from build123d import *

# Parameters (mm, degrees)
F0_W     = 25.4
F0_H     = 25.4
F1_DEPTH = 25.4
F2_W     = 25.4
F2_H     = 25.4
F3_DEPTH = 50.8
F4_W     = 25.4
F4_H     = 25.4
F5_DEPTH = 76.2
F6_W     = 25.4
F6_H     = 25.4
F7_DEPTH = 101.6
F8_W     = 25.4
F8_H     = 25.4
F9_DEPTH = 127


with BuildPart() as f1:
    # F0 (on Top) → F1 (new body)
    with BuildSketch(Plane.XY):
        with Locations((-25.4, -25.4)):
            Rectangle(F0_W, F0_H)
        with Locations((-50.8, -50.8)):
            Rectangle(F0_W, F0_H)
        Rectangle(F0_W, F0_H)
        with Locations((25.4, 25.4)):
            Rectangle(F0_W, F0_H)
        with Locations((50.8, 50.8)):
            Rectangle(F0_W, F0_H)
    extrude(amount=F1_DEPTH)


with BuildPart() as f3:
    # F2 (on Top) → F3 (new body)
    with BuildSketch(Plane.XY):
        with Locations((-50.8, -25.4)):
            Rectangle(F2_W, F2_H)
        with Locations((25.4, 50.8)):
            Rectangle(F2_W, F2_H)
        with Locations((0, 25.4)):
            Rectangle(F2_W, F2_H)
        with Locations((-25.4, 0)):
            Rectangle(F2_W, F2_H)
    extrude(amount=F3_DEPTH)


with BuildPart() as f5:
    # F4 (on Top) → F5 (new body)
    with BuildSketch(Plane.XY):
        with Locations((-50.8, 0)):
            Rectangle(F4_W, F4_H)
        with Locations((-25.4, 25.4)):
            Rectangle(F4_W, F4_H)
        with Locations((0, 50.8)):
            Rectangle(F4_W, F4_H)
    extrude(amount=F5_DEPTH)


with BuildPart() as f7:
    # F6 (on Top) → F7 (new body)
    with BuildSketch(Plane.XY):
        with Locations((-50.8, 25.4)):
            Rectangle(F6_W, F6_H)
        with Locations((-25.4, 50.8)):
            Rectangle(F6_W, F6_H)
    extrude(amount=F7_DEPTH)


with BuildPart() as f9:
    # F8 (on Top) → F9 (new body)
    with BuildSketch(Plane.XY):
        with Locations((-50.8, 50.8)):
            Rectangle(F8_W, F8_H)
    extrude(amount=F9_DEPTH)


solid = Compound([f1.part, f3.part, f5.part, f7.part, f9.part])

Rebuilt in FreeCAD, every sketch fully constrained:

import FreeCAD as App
import Part
import Sketcher
from FreeCAD import Vector
Q = App.Units.Quantity


def add_polygon(sketch, points):
    """Adds a closed chain of lines whose ends are joined by coincident constraints."""
    first, n = sketch.GeometryCount, len(points)
    for a, b in zip(points, points[1:] + points[:1]):
        sketch.addGeometry(Part.LineSegment(App.Vector(*a, 0), App.Vector(*b, 0)), False)
    for i in range(n):
        sketch.addConstraint(Sketcher.Constraint("Coincident", first + i, 2, first + (i + 1) % n, 1))

doc = App.newDocument("Part")
body = doc.addObject("PartDesign::Body", "Body")
body.AllowCompound = True

sketch1 = body.newObject("Sketcher::SketchObject", "Sketch")
sketch1.AttachmentSupport = (doc.getObject("XY_Plane"), [""])
sketch1.MapMode = "FlatFace"
add_polygon(sketch1, [(-38.1, -12.7), (-38.1, -38.1), (-12.7, -38.1), (-12.7, -12.7)])
add_polygon(sketch1, [(-63.5, -38.1), (-63.5, -63.5), (-38.1, -63.5), (-38.1, -38.1)])
add_polygon(sketch1, [(-12.7, 12.7), (-12.7, -12.7), (12.7, -12.7), (12.7, 12.7)])
add_polygon(sketch1, [(12.7, 38.1), (12.7, 12.7), (38.1, 12.7), (38.1, 38.1)])
add_polygon(sketch1, [(38.1, 63.5), (38.1, 38.1), (63.5, 38.1), (63.5, 63.5)])
sketch1.addConstraint([
    Sketcher.Constraint("Vertical", 0),
    Sketcher.Constraint("Horizontal", 1),
    Sketcher.Constraint("Vertical", 2),
    Sketcher.Constraint("Horizontal", 3),
    Sketcher.Constraint("Vertical", 4),
    Sketcher.Constraint("Horizontal", 5),
    Sketcher.Constraint("Vertical", 6),
    Sketcher.Constraint("Horizontal", 7),
    Sketcher.Constraint("Vertical", 8),
    Sketcher.Constraint("Horizontal", 9),
    Sketcher.Constraint("Vertical", 10),
    Sketcher.Constraint("Horizontal", 11),
    Sketcher.Constraint("Vertical", 12),
    Sketcher.Constraint("Horizontal", 13),
    Sketcher.Constraint("Vertical", 14),
    Sketcher.Constraint("Horizontal", 15),
    Sketcher.Constraint("Vertical", 16),
    Sketcher.Constraint("Horizontal", 17),
    Sketcher.Constraint("Vertical", 18),
    Sketcher.Constraint("Horizontal", 19),
    Sketcher.Constraint("Coincident", 6, 2, 0, 2),
    Sketcher.Constraint("Coincident", 8, 2, 2, 2),
    Sketcher.Constraint("Coincident", 12, 2, 10, 2),
    Sketcher.Constraint("Coincident", 16, 2, 14, 2),
    Sketcher.Constraint("Symmetric", 2, 2, 10, 2, -1, 1),
    Sketcher.Constraint("Symmetric", 0, 2, 14, 2, -1, 1),
    Sketcher.Constraint("Symmetric", 4, 2, 18, 2, -1, 1),
    Sketcher.Constraint("Equal", 3, 5),
    Sketcher.Constraint("Equal", 7, 9),
    Sketcher.Constraint("Equal", 19, 0),
    Sketcher.Constraint("Equal", 2, 4),
    Sketcher.Constraint("Equal", 6, 8),
    Sketcher.Constraint("DistanceX", 1, 1, 1, 2, Q("1 in")),
])
pad1 = body.newObject("PartDesign::Pad", "Pad")
pad1.Profile = sketch1
pad1.Length = Q("1 in")
body2 = doc.addObject("PartDesign::Body", "Body001")
body2.AllowCompound = True

sketch2 = body2.newObject("Sketcher::SketchObject", "Sketch001")
sketch2.AttachmentSupport = (doc.getObject("XY_Plane001"), [""])
sketch2.MapMode = "FlatFace"
add_polygon(sketch2, [(-63.5, -12.7), (-63.5, -38.1), (-38.1, -38.1), (-38.1, -12.7)])
add_polygon(sketch2, [(12.7, 63.5), (12.7, 38.1), (38.1, 38.1), (38.1, 63.5)])
add_polygon(sketch2, [(-12.7, 38.1), (-12.7, 12.7), (12.7, 12.7), (12.7, 38.1)])
add_polygon(sketch2, [(-38.1, 12.7), (-38.1, -12.7), (-12.7, -12.7), (-12.7, 12.7)])
sketch2.addConstraint([
    Sketcher.Constraint("Vertical", 0),
    Sketcher.Constraint("Horizontal", 1),
    Sketcher.Constraint("Vertical", 2),
    Sketcher.Constraint("Horizontal", 3),
    Sketcher.Constraint("Vertical", 4),
    Sketcher.Constraint("Horizontal", 5),
    Sketcher.Constraint("Vertical", 6),
    Sketcher.Constraint("Horizontal", 7),
    Sketcher.Constraint("Vertical", 8),
    Sketcher.Constraint("Horizontal", 9),
    Sketcher.Constraint("Vertical", 10),
    Sketcher.Constraint("Horizontal", 11),
    Sketcher.Constraint("Vertical", 12),
    Sketcher.Constraint("Horizontal", 13),
    Sketcher.Constraint("Vertical", 14),
    Sketcher.Constraint("Horizontal", 15),
    Sketcher.Constraint("Coincident", 10, 2, 4, 2),
    Sketcher.Constraint("Coincident", 12, 2, 2, 2),
    Sketcher.Constraint("Coincident", 14, 2, 8, 2),
    Sketcher.Constraint("Symmetric", 1, 2, 5, 2, -1, 1),
    Sketcher.Constraint("Symmetric", 9, 2, 13, 2, -1, 1),
    Sketcher.Constraint("Equal", 3, 5),
    Sketcher.Constraint("Equal", 7, 9),
    Sketcher.Constraint("Equal", 15, 0),
    Sketcher.Constraint("Equal", 2, 4),
    Sketcher.Constraint("Equal", 10, 12),
    Sketcher.Constraint("DistanceX", 1, 1, 1, 2, Q("1 in")),
])
pad2 = body2.newObject("PartDesign::Pad", "Pad001")
pad2.Profile = sketch2
pad2.Length = Q("2 in")
body3 = doc.addObject("PartDesign::Body", "Body002")
body3.AllowCompound = True

sketch3 = body3.newObject("Sketcher::SketchObject", "Sketch002")
sketch3.AttachmentSupport = (doc.getObject("XY_Plane002"), [""])
sketch3.MapMode = "FlatFace"
add_polygon(sketch3, [(-63.5, 12.7), (-63.5, -12.7), (-38.1, -12.7), (-38.1, 12.7)])
add_polygon(sketch3, [(-38.1, 38.1), (-38.1, 12.7), (-12.7, 12.7), (-12.7, 38.1)])
add_polygon(sketch3, [(-12.7, 63.5), (-12.7, 38.1), (12.7, 38.1), (12.7, 63.5)])
sketch3.addConstraint([
    Sketcher.Constraint("Vertical", 0),
    Sketcher.Constraint("Horizontal", 1),
    Sketcher.Constraint("Vertical", 2),
    Sketcher.Constraint("Horizontal", 3),
    Sketcher.Constraint("Vertical", 4),
    Sketcher.Constraint("Horizontal", 5),
    Sketcher.Constraint("Vertical", 6),
    Sketcher.Constraint("Horizontal", 7),
    Sketcher.Constraint("Vertical", 8),
    Sketcher.Constraint("Horizontal", 9),
    Sketcher.Constraint("Vertical", 10),
    Sketcher.Constraint("Horizontal", 11),
    Sketcher.Constraint("Coincident", 4, 2, 2, 2),
    Sketcher.Constraint("Coincident", 8, 2, 6, 2),
    Sketcher.Constraint("Equal", 3, 5),
    Sketcher.Constraint("Equal", 7, 9),
    Sketcher.Constraint("Equal", 11, 0),
    Sketcher.Constraint("Equal", 2, 4),
    Sketcher.Constraint("Equal", 6, 8),
    Sketcher.Constraint("DistanceX", 1, 1, 1, 2, Q("1 in")),
    Sketcher.Constraint("DistanceX", 0, 2, -1, 1, Q("2.5 in")),
    Sketcher.Constraint("DistanceY", 0, 2, -1, 1, Q("0.5 in")),
])
pad3 = body3.newObject("PartDesign::Pad", "Pad002")
pad3.Profile = sketch3
pad3.Length = Q("3 in")
body4 = doc.addObject("PartDesign::Body", "Body003")
body4.AllowCompound = True

sketch4 = body4.newObject("Sketcher::SketchObject", "Sketch003")
sketch4.AttachmentSupport = (doc.getObject("XY_Plane003"), [""])
sketch4.MapMode = "FlatFace"
add_polygon(sketch4, [(-63.5, 38.1), (-63.5, 12.7), (-38.1, 12.7), (-38.1, 38.1)])
add_polygon(sketch4, [(-38.1, 63.5), (-38.1, 38.1), (-12.7, 38.1), (-12.7, 63.5)])
sketch4.addConstraint([
    Sketcher.Constraint("Vertical", 0),
    Sketcher.Constraint("Horizontal", 1),
    Sketcher.Constraint("Vertical", 2),
    Sketcher.Constraint("Horizontal", 3),
    Sketcher.Constraint("Vertical", 4),
    Sketcher.Constraint("Horizontal", 5),
    Sketcher.Constraint("Vertical", 6),
    Sketcher.Constraint("Horizontal", 7),
    Sketcher.Constraint("Coincident", 4, 2, 2, 2),
    Sketcher.Constraint("Equal", 3, 5),
    Sketcher.Constraint("Equal", 7, 0),
    Sketcher.Constraint("Equal", 2, 4),
    Sketcher.Constraint("DistanceX", 1, 1, 1, 2, Q("1 in")),
    Sketcher.Constraint("DistanceX", 0, 2, -1, 1, Q("2.5 in")),
    Sketcher.Constraint("DistanceY", -1, 1, 0, 2, Q("0.5 in")),
])
pad4 = body4.newObject("PartDesign::Pad", "Pad003")
pad4.Profile = sketch4
pad4.Length = Q("4 in")
body5 = doc.addObject("PartDesign::Body", "Body004")

sketch5 = body5.newObject("Sketcher::SketchObject", "Sketch004")
sketch5.AttachmentSupport = (doc.getObject("XY_Plane004"), [""])
sketch5.MapMode = "FlatFace"
add_polygon(sketch5, [(-63.5, 63.5), (-63.5, 38.1), (-38.1, 38.1), (-38.1, 63.5)])
sketch5.addConstraint([
    Sketcher.Constraint("Vertical", 0),
    Sketcher.Constraint("Horizontal", 1),
    Sketcher.Constraint("Vertical", 2),
    Sketcher.Constraint("Horizontal", 3),
    Sketcher.Constraint("Equal", 3, 0),
    Sketcher.Constraint("DistanceX", 1, 1, 1, 2, Q("1 in")),
    Sketcher.Constraint("DistanceX", 0, 2, -1, 1, Q("2.5 in")),
    Sketcher.Constraint("DistanceY", -1, 1, 0, 2, Q("1.5 in")),
])
pad5 = body5.newObject("PartDesign::Pad", "Pad004")
pad5.Profile = sketch5
pad5.Length = Q("5 in")

doc.recompute()
